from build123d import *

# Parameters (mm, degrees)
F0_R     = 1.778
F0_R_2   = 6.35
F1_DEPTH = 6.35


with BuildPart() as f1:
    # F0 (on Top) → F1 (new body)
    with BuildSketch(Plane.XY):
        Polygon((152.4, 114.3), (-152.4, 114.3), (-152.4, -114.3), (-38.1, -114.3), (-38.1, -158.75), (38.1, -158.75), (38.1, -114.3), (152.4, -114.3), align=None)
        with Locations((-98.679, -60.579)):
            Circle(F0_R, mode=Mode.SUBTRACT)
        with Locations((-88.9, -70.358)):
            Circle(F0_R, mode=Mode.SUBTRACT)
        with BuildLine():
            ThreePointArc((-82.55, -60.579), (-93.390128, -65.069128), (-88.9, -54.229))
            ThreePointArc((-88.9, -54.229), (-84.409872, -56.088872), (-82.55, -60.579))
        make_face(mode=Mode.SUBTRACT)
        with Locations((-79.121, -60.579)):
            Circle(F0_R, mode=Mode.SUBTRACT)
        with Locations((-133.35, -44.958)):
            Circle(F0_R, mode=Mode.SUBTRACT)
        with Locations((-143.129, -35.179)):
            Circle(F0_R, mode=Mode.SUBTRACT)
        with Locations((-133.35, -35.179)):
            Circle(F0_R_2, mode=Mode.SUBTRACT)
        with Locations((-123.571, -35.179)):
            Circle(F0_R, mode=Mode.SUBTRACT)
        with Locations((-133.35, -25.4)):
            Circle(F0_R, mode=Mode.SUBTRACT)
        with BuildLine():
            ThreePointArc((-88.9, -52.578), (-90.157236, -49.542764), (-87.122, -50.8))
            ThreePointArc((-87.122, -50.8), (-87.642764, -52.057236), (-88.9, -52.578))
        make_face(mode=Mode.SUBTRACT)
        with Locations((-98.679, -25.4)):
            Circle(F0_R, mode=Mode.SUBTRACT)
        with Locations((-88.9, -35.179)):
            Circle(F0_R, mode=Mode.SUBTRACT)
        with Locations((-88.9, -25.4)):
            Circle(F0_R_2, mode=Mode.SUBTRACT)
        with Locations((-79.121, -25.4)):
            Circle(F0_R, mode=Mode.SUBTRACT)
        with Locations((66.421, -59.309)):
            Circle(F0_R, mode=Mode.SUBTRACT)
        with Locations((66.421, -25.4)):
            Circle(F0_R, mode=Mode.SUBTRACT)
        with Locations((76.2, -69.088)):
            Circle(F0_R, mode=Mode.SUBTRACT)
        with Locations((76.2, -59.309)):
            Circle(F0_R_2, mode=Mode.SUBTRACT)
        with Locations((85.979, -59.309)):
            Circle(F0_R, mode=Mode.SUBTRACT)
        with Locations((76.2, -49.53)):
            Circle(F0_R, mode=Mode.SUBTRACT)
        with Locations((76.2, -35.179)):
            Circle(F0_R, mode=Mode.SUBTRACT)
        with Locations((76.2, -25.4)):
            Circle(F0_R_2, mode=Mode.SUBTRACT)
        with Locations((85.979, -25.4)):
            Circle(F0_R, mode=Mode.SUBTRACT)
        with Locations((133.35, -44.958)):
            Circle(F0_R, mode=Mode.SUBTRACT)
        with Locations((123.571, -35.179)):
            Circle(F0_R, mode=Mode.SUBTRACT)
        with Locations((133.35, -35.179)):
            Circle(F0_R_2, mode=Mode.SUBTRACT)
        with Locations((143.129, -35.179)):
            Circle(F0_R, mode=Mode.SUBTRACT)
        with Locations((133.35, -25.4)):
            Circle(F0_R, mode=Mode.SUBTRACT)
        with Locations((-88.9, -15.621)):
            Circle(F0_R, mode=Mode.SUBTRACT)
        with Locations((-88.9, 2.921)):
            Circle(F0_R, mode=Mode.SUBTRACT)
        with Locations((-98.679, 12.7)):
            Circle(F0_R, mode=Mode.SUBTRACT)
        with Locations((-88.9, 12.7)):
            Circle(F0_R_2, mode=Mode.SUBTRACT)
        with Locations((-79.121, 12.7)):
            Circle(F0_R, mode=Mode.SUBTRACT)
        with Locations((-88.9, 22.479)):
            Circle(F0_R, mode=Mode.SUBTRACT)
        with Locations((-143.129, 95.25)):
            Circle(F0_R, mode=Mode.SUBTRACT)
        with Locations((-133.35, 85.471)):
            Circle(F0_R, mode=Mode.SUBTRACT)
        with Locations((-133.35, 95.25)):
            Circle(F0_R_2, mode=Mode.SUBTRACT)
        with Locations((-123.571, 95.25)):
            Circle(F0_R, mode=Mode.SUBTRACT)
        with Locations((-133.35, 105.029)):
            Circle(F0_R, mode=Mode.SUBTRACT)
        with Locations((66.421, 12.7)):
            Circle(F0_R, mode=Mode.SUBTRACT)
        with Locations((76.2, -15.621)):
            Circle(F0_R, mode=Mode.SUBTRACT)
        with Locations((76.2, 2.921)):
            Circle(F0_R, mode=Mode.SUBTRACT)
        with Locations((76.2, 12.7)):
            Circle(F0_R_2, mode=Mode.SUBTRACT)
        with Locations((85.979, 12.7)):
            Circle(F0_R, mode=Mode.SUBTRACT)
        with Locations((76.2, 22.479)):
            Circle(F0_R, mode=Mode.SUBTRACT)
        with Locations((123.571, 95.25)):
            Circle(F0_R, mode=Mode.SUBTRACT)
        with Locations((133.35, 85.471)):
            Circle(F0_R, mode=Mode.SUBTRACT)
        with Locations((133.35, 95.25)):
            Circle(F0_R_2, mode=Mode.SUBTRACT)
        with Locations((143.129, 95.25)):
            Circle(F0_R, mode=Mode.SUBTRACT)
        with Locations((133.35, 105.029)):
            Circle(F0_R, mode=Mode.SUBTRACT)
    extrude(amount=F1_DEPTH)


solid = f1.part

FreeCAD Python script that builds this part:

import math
import FreeCAD as App
import Part
import Sketcher

V = App.Vector
Q = App.Units.Quantity


def add_polygon(sketch, points):
    """Adds a closed chain of lines whose ends are joined by coincident constraints."""
    first, n = sketch.GeometryCount, len(points)
    for a, b in zip(points, points[1:] + points[:1]):
        sketch.addGeometry(Part.LineSegment(App.Vector(*a, 0), App.Vector(*b, 0)), False)
    for i in range(n):
        sketch.addConstraint(Sketcher.Constraint("Coincident", first + i, 2, first + (i + 1) % n, 1))

doc = App.newDocument("Part")
body = doc.addObject("PartDesign::Body", "Body")

# Sketch on XY plane
sketch1 = body.newObject("Sketcher::SketchObject", "Sketch")
sketch1.AttachmentSupport = (doc.getObject("XY_Plane"), [""])
sketch1.MapMode = "FlatFace"
add_polygon(sketch1, [(152.4, 114.3), (-152.4, 114.3), (-152.4, -114.3), (-38.1, -114.3), (-38.1, -158.75), (38.1, -158.75), (38.1, -114.3), (152.4, -114.3)])  # lines 0-7
sketch1.addGeometry(Part.Circle(V(-88.9, -70.358, 0), V(0, 0, 1), 1.778), False)  # 8
sketch1.addGeometry(Part.Circle(V(-98.679, -60.579, 0), V(0, 0, 1), 1.778), False)  # 9
sketch1.addGeometry(Part.ArcOfCircle(Part.Circle(V(-88.9, -60.579, 0), V(0, 0, 1), 6.35), math.radians(0.000002), math.radians(89.999998)), False)  # 10
sketch1.addGeometry(Part.ArcOfCircle(Part.Circle(V(-88.9, -60.579, 0), V(0, 0, 1), 6.35), math.radians(90), math.radians(360)), False)  # 11
sketch1.addGeometry(Part.Circle(V(-79.121, -60.579, 0), V(0, 0, 1), 1.778), False)  # 12
sketch1.addGeometry(Part.ArcOfCircle(Part.Circle(V(-88.9, -50.8, 0), V(0, 0, 1), 1.778), math.radians(-90.000016), math.radians(0.000016)), False)  # 13
sketch1.addGeometry(Part.ArcOfCircle(Part.Circle(V(-88.9, -50.8, 0), V(0, 0, 1), 1.778), math.radians(-0.000003), math.radians(270.000003)), False)  # 14
sketch1.addGeometry(Part.Circle(V(-133.35, -44.958, 0), V(0, 0, 1), 1.778), False)  # 15
sketch1.addGeometry(Part.Circle(V(-143.129, -35.179, 0), V(0, 0, 1), 1.778), False)  # 16
sketch1.addGeometry(Part.Circle(V(-133.35, -35.179, 0), V(0, 0, 1), 6.35), False)  # 17
sketch1.addGeometry(Part.Circle(V(-123.571, -35.179, 0), V(0, 0, 1), 1.778), False)  # 18
sketch1.addGeometry(Part.Circle(V(-88.9, -35.179, 0), V(0, 0, 1), 1.778), False)  # 19
sketch1.addGeometry(Part.Circle(V(-133.35, -25.4, 0), V(0, 0, 1), 1.778), False)  # 20
sketch1.addGeometry(Part.Circle(V(-98.679, -25.4, 0), V(0, 0, 1), 1.778), False)  # 21
sketch1.addGeometry(Part.Circle(V(-88.9, -25.4, 0), V(0, 0, 1), 6.35), False)  # 22
sketch1.addGeometry(Part.Circle(V(-79.121, -25.4, 0), V(0, 0, 1), 1.778), False)  # 23
sketch1.addGeometry(Part.Circle(V(-88.9, -15.621, 0), V(0, 0, 1), 1.778), False)  # 24
sketch1.addGeometry(Part.Circle(V(-88.9, 2.921, 0), V(0, 0, 1), 1.778), False)  # 25
sketch1.addGeometry(Part.Circle(V(-98.679, 12.7, 0), V(0, 0, 1), 1.778), False)  # 26
sketch1.addGeometry(Part.Circle(V(-88.9, 12.7, 0), V(0, 0, 1), 6.35), False)  # 27
sketch1.addGeometry(Part.Circle(V(-79.121, 12.7, 0), V(0, 0, 1), 1.778), False)  # 28
sketch1.addGeometry(Part.Circle(V(66.421, -59.309, 0), V(0, 0, 1), 1.778), False)  # 29
sketch1.addGeometry(Part.Circle(V(76.2, -69.088, 0), V(0, 0, 1), 1.778), False)  # 30
sketch1.addGeometry(Part.Circle(V(76.2, -59.309, 0), V(0, 0, 1), 6.35), False)  # 31
sketch1.addGeometry(Part.Circle(V(85.979, -59.309, 0), V(0, 0, 1), 1.778), False)  # 32
sketch1.addGeometry(Part.Circle(V(76.2, -49.53, 0), V(0, 0, 1), 1.778), False)  # 33
sketch1.addGeometry(Part.Circle(V(76.2, -35.179, 0), V(0, 0, 1), 1.778), False)  # 34
sketch1.addGeometry(Part.Circle(V(133.35, -44.958, 0), V(0, 0, 1), 1.778), False)  # 35
sketch1.addGeometry(Part.Circle(V(123.571, -35.179, 0), V(0, 0, 1), 1.778), False)  # 36
sketch1.addGeometry(Part.Circle(V(133.35, -35.179, 0), V(0, 0, 1), 6.35), False)  # 37
sketch1.addGeometry(Part.Circle(V(143.129, -35.179, 0), V(0, 0, 1), 1.778), False)  # 38
sketch1.addGeometry(Part.Circle(V(66.421, -25.4, 0), V(0, 0, 1), 1.778), False)  # 39
sketch1.addGeometry(Part.Circle(V(66.421, 12.7, 0), V(0, 0, 1), 1.778), False)  # 40
sketch1.addGeometry(Part.Circle(V(76.2, -25.4, 0), V(0, 0, 1), 6.35), False)  # 41
sketch1.addGeometry(Part.Circle(V(85.979, -25.4, 0), V(0, 0, 1), 1.778), False)  # 42
sketch1.addGeometry(Part.Circle(V(76.2, -15.621, 0), V(0, 0, 1), 1.778), False)  # 43
sketch1.addGeometry(Part.Circle(V(133.35, -25.4, 0), V(0, 0, 1), 1.778), False)  # 44
sketch1.addGeometry(Part.Circle(V(76.2, 2.921, 0), V(0, 0, 1), 1.778), False)  # 45
sketch1.addGeometry(Part.Circle(V(76.2, 12.7, 0), V(0, 0, 1), 6.35), False)  # 46
sketch1.addGeometry(Part.Circle(V(85.979, 12.7, 0), V(0, 0, 1), 1.778), False)  # 47
sketch1.addGeometry(Part.Circle(V(-88.9, 22.479, 0), V(0, 0, 1), 1.778), False)  # 48
sketch1.addGeometry(Part.Circle(V(-133.35, 85.471, 0), V(0, 0, 1), 1.778), False)  # 49
sketch1.addGeometry(Part.Circle(V(-143.129, 95.25, 0), V(0, 0, 1), 1.778), False)  # 50
sketch1.addGeometry(Part.Circle(V(-133.35, 95.25, 0), V(0, 0, 1), 6.35), False)  # 51
sketch1.addGeometry(Part.Circle(V(-123.571, 95.25, 0), V(0, 0, 1), 1.778), False)  # 52
sketch1.addGeometry(Part.Circle(V(-133.35, 105.029, 0), V(0, 0, 1), 1.778), False)  # 53
sketch1.addGeometry(Part.Circle(V(76.2, 22.479, 0), V(0, 0, 1), 1.778), False)  # 54
sketch1.addGeometry(Part.Circle(V(123.571, 95.25, 0), V(0, 0, 1), 1.778), False)  # 55
sketch1.addGeometry(Part.Circle(V(133.35, 85.471, 0), V(0, 0, 1), 1.778), False)  # 56
sketch1.addGeometry(Part.Circle(V(133.35, 95.25, 0), V(0, 0, 1), 6.35), False)  # 57
sketch1.addGeometry(Part.Circle(V(143.129, 95.25, 0), V(0, 0, 1), 1.778), False)  # 58
sketch1.addGeometry(Part.Circle(V(133.35, 105.029, 0), V(0, 0, 1), 1.778), False)  # 59
sketch1.addConstraint(Sketcher.Constraint("Tangent", 10, 1, 11, 2))
sketch1.addConstraint(Sketcher.Constraint("Coincident", 11, 1, 10, 2))
sketch1.addConstraint(Sketcher.Constraint("Tangent", 13, 1, 14, 2))
sketch1.addConstraint(Sketcher.Constraint("Coincident", 14, 1, 13, 2))
sketch1.addConstraint(Sketcher.Constraint("Horizontal", 0))
sketch1.addConstraint(Sketcher.Constraint("Vertical", 1))
sketch1.addConstraint(Sketcher.Constraint("Horizontal", 2))
sketch1.addConstraint(Sketcher.Constraint("Vertical", 3))
sketch1.addConstraint(Sketcher.Constraint("Horizontal", 4))
sketch1.addConstraint(Sketcher.Constraint("Vertical", 5))
sketch1.addConstraint(Sketcher.Constraint("Horizontal", 6))
sketch1.addConstraint(Sketcher.Constraint("Vertical", 7))
sketch1.addConstraint(Sketcher.Constraint("Equal", 8, 9))
sketch1.addConstraint(Sketcher.Constraint("Equal", 9, 12))
sketch1.addConstraint(Sketcher.Constraint("Equal", 12, 13))
sketch1.addConstraint(Sketcher.Constraint("Equal", 14, 15))
sketch1.addConstraint(Sketcher.Constraint("Equal", 15, 16))
sketch1.addConstraint(Sketcher.Constraint("Equal", 11, 17))
sketch1.addConstraint(Sketcher.Constraint("Equal", 16, 18))
sketch1.addConstraint(Sketcher.Constraint("Equal", 18, 19))
sketch1.addConstraint(Sketcher.Constraint("Equal", 19, 20))
sketch1.addConstraint(Sketcher.Constraint("Equal", 20, 21))
sketch1.addConstraint(Sketcher.Constraint("Equal", 17, 22))
sketch1.addConstraint(Sketcher.Constraint("Equal", 21, 23))
sketch1.addConstraint(Sketcher.Constraint("Equal", 23, 24))
sketch1.addConstraint(Sketcher.Constraint("Equal", 24, 25))
sketch1.addConstraint(Sketcher.Constraint("Equal", 25, 26))
sketch1.addConstraint(Sketcher.Constraint("Equal", 22, 27))
sketch1.addConstraint(Sketcher.Constraint("Equal", 26, 28))
sketch1.addConstraint(Sketcher.Constraint("Equal", 28, 29))
sketch1.addConstraint(Sketcher.Constraint("Equal", 29, 30))
sketch1.addConstraint(Sketcher.Constraint("Equal", 27, 31))
sketch1.addConstraint(Sketcher.Constraint("Equal", 30, 32))
sketch1.addConstraint(Sketcher.Constraint("Equal", 32, 33))
sketch1.addConstraint(Sketcher.Constraint("Equal", 33, 34))
sketch1.addConstraint(Sketcher.Constraint("Equal", 34, 35))
sketch1.addConstraint(Sketcher.Constraint("Equal", 35, 36))
sketch1.addConstraint(Sketcher.Constraint("Equal", 31, 37))
sketch1.addConstraint(Sketcher.Constraint("Equal", 36, 38))
sketch1.addConstraint(Sketcher.Constraint("Equal", 38, 39))
sketch1.addConstraint(Sketcher.Constraint("Equal", 39, 40))
sketch1.addConstraint(Sketcher.Constraint("Equal", 37, 41))
sketch1.addConstraint(Sketcher.Constraint("Equal", 40, 42))
sketch1.addConstraint(Sketcher.Constraint("Equal", 42, 43))
sketch1.addConstraint(Sketcher.Constraint("Equal", 43, 44))
sketch1.addConstraint(Sketcher.Constraint("Equal", 44, 45))
sketch1.addConstraint(Sketcher.Constraint("Equal", 41, 46))
sketch1.addConstraint(Sketcher.Constraint("Equal", 45, 47))
sketch1.addConstraint(Sketcher.Constraint("Equal", 47, 48))
sketch1.addConstraint(Sketcher.Constraint("Equal", 48, 49))
sketch1.addConstraint(Sketcher.Constraint("Equal", 49, 50))
sketch1.addConstraint(Sketcher.Constraint("Equal", 46, 51))
sketch1.addConstraint(Sketcher.Constraint("Equal", 50, 52))
sketch1.addConstraint(Sketcher.Constraint("Equal", 52, 53))
sketch1.addConstraint(Sketcher.Constraint("Equal", 53, 54))
sketch1.addConstraint(Sketcher.Constraint("Equal", 54, 55))
sketch1.addConstraint(Sketcher.Constraint("Equal", 55, 56))
sketch1.addConstraint(Sketcher.Constraint("Equal", 51, 57))
sketch1.addConstraint(Sketcher.Constraint("Equal", 56, 58))
sketch1.addConstraint(Sketcher.Constraint("Equal", 58, 59))
sketch1.addConstraint(Sketcher.Constraint("Symmetric", 0, 2, 6, 2, -1, 1))
sketch1.addConstraint(Sketcher.Constraint("Symmetric", 15, 3, 35, 3, -2))
sketch1.addConstraint(Sketcher.Constraint("Symmetric", 18, 3, 36, 3, -2))
sketch1.addConstraint(Sketcher.Constraint("Symmetric", 17, 3, 37, 3, -2))
sketch1.addConstraint(Sketcher.Constraint("Symmetric", 16, 3, 38, 3, -2))
sketch1.addConstraint(Sketcher.Constraint("Symmetric", 20, 3, 44, 3, -2))
sketch1.addConstraint(Sketcher.Constraint("Symmetric", 52, 3, 55, 3, -2))
sketch1.addConstraint(Sketcher.Constraint("Symmetric", 49, 3, 56, 3, -2))
sketch1.addConstraint(Sketcher.Constraint("Symmetric", 51, 3, 57, 3, -2))
sketch1.addConstraint(Sketcher.Constraint("Symmetric", 50, 3, 58, 3, -2))
sketch1.addConstraint(Sketcher.Constraint("Symmetric", 53, 3, 59, 3, -2))
sketch1.addConstraint(Sketcher.Constraint("Symmetric", 2, 2, 5, 2, -2))
sketch1.addConstraint(Sketcher.Constraint("Horizontal", 9, 3, 10, 3))
sketch1.addConstraint(Sketcher.Constraint("Horizontal", 11, 3, 12, 3))
sketch1.addConstraint(Sketcher.Constraint("Horizontal", 16, 3, 17, 3))
sketch1.addConstraint(Sketcher.Constraint("Horizontal", 17, 3, 18, 3))
sketch1.addConstraint(Sketcher.Constraint("Horizontal", 18, 3, 19, 3))
sketch1.addConstraint(Sketcher.Constraint("Horizontal", 20, 3, 21, 3))
sketch1.addConstraint(Sketcher.Constraint("Horizontal", 21, 3, 22, 3))
sketch1.addConstraint(Sketcher.Constraint("Horizontal", 22, 3, 23, 3))
sketch1.addConstraint(Sketcher.Constraint("Horizontal", 26, 3, 27, 3))
sketch1.addConstraint(Sketcher.Constraint("Horizontal", 27, 3, 28, 3))
sketch1.addConstraint(Sketcher.Constraint("Horizontal", 29, 3, 31, 3))
sketch1.addConstraint(Sketcher.Constraint("Horizontal", 31, 3, 32, 3))
sketch1.addConstraint(Sketcher.Constraint("Horizontal", 19, 3, 34, 3))
sketch1.addConstraint(Sketcher.Constraint("Horizontal", 23, 3, 39, 3))
sketch1.addConstraint(Sketcher.Constraint("Horizontal", 28, 3, 40, 3))
sketch1.addConstraint(Sketcher.Constraint("Horizontal", 39, 3, 41, 3))
sketch1.addConstraint(Sketcher.Constraint("Horizontal", 41, 3, 42, 3))
sketch1.addConstraint(Sketcher.Constraint("Horizontal", 24, 3, 43, 3))
sketch1.addConstraint(Sketcher.Constraint("Horizontal", 25, 3, 45, 3))
sketch1.addConstraint(Sketcher.Constraint("Horizontal", 40, 3, 46, 3))
sketch1.addConstraint(Sketcher.Constraint("Horizontal", 46, 3, 47, 3))
sketch1.addConstraint(Sketcher.Constraint("Horizontal", 50, 3, 51, 3))
sketch1.addConstraint(Sketcher.Constraint("Horizontal", 51, 3, 52, 3))
sketch1.addConstraint(Sketcher.Constraint("Horizontal", 48, 3, 54, 3))
sketch1.addConstraint(Sketcher.Constraint("Horizontal", 12, 3, 10, 1))
sketch1.addConstraint(Sketcher.Constraint("Horizontal", 13, 3, 14, 1))
sketch1.addConstraint(Sketcher.Constraint("Vertical", 8, 3, 10, 3))
sketch1.addConstraint(Sketcher.Constraint("Vertical", 11, 3, 13, 3))
sketch1.addConstraint(Sketcher.Constraint("Vertical", 15, 3, 17, 3))
sketch1.addConstraint(Sketcher.Constraint("Vertical", 14, 3, 19, 3))
sketch1.addConstraint(Sketcher.Constraint("Vertical", 17, 3, 20, 3))
sketch1.addConstraint(Sketcher.Constraint("Vertical", 9, 3, 21, 3))
sketch1.addConstraint(Sketcher.Constraint("Vertical", 19, 3, 22, 3))
sketch1.addConstraint(Sketcher.Constraint("Vertical", 12, 3, 23, 3))
sketch1.addConstraint(Sketcher.Constraint("Vertical", 22, 3, 24, 3))
sketch1.addConstraint(Sketcher.Constraint("Vertical", 24, 3, 25, 3))
sketch1.addConstraint(Sketcher.Constraint("Vertical", 21, 3, 26, 3))
sketch1.addConstraint(Sketcher.Constraint("Vertical", 25, 3, 27, 3))
sketch1.addConstraint(Sketcher.Constraint("Vertical", 23, 3, 28, 3))
sketch1.addConstraint(Sketcher.Constraint("Vertical", 30, 3, 31, 3))
sketch1.addConstraint(Sketcher.Constraint("Vertical", 31, 3, 33, 3))
sketch1.addConstraint(Sketcher.Constraint("Vertical", 33, 3, 34, 3))
sketch1.addConstraint(Sketcher.Constraint("Vertical", 29, 3, 39, 3))
sketch1.addConstraint(Sketcher.Constraint("Vertical", 39, 3, 40, 3))
sketch1.addConstraint(Sketcher.Constraint("Vertical", 34, 3, 41, 3))
sketch1.addConstraint(Sketcher.Constraint("Vertical", 32, 3, 42, 3))
sketch1.addConstraint(Sketcher.Constraint("Vertical", 41, 3, 43, 3))
sketch1.addConstraint(Sketcher.Constraint("Vertical", 43, 3, 45, 3))
sketch1.addConstraint(Sketcher.Constraint("Vertical", 45, 3, 46, 3))
sketch1.addConstraint(Sketcher.Constraint("Vertical", 42, 3, 47, 3))
sketch1.addConstraint(Sketcher.Constraint("Vertical", 27, 3, 48, 3))
sketch1.addConstraint(Sketcher.Constraint("Vertical", 20, 3, 49, 3))
sketch1.addConstraint(Sketcher.Constraint("Vertical", 16, 3, 50, 3))
sketch1.addConstraint(Sketcher.Constraint("Vertical", 49, 3, 51, 3))
sketch1.addConstraint(Sketcher.Constraint("Vertical", 18, 3, 52, 3))
sketch1.addConstraint(Sketcher.Constraint("Vertical", 51, 3, 53, 3))
sketch1.addConstraint(Sketcher.Constraint("Vertical", 46, 3, 54, 3))
sketch1.addConstraint(Sketcher.Constraint("Vertical", 48, 3, 11, 1))
sketch1.addConstraint(Sketcher.Constraint("Vertical", 11, 1, 13, 1))
sketch1.addConstraint(Sketcher.Constraint("Diameter", 17, Q("0.5 in")))
sketch1.addConstraint(Sketcher.Constraint("Diameter", 8, Q("0.14 in")))
sketch1.addConstraint(Sketcher.Constraint("DistanceX", 0, 2, 0, 1, Q("12 in")))
sketch1.addConstraint(Sketcher.Constraint("DistanceX", 4, 1, 4, 2, Q("3 in")))
sketch1.addConstraint(Sketcher.Constraint("DistanceY", 1, 2, 1, 1, Q("9 in")))
sketch1.addConstraint(Sketcher.Constraint("DistanceY", 13, 3, -1, 1, Q("2 in")))
sketch1.addConstraint(Sketcher.Constraint("DistanceY", 20, 3, -1, 1, Q("1 in")))
sketch1.addConstraint(Sketcher.Constraint("DistanceX", -1, 1, 30, 3, Q("3 in")))
sketch1.addConstraint(Sketcher.Constraint("DistanceY", 3, 2, 3, 1, Q("1.75 in")))
sketch1.addConstraint(Sketcher.Constraint("DistanceX", 8, 3, -1, 1, Q("3.5 in")))
sketch1.addConstraint(Sketcher.Constraint("DistanceY", -1, 1, 26, 3, Q("0.5 in")))
sketch1.addConstraint(Sketcher.Constraint("DistanceY", 8, 3, -1, 1, Q("2.77 in")))
sketch1.addConstraint(Sketcher.Constraint("DistanceX", 15, 3, -1, 1, Q("5.25 in")))
sketch1.addConstraint(Sketcher.Constraint("DistanceY", 15, 3, -1, 1, Q("1.77 in")))
sketch1.addConstraint(Sketcher.Constraint("DistanceY", 30, 3, -1, 1, Q("2.72 in")))
sketch1.addConstraint(Sketcher.Constraint("DistanceY", 33, 3, -1, 1, Q("1.95 in")))
sketch1.addConstraint(Sketcher.Constraint("DistanceY", -1, 1, 50, 3, Q("3.75 in")))
sketch1.addConstraint(Sketcher.Constraint("DistanceX", 9, 3, -1, 1, Q("3.885 in")))
sketch1.addConstraint(Sketcher.Constraint("DistanceY", 9, 3, -1, 1, Q("2.385 in")))
sketch1.addConstraint(Sketcher.Constraint("DistanceX", 12, 3, -1, 1, Q("3.115 in")))
sketch1.addConstraint(Sketcher.Constraint("DistanceX", 16, 3, -1, 1, Q("5.635 in")))
sketch1.addConstraint(Sketcher.Constraint("DistanceY", 16, 3, -1, 1, Q("1.385 in")))
sketch1.addConstraint(Sketcher.Constraint("DistanceX", 18, 3, -1, 1, Q("4.865 in")))
sketch1.addConstraint(Sketcher.Constraint("DistanceY", 24, 3, -1, 1, Q("0.615 in")))
sketch1.addConstraint(Sketcher.Constraint("DistanceY", -1, 1, 25, 3, Q("0.115 in")))
sketch1.addConstraint(Sketcher.Constraint("DistanceX", -1, 1, 29, 3, Q("2.615 in")))
sketch1.addConstraint(Sketcher.Constraint("DistanceY", 29, 3, -1, 1, Q("2.335 in")))
sketch1.addConstraint(Sketcher.Constraint("DistanceX", -1, 1, 32, 3, Q("3.385 in")))
sketch1.addConstraint(Sketcher.Constraint("DistanceY", -1, 1, 48, 3, Q("0.885 in")))
sketch1.addConstraint(Sketcher.Constraint("DistanceY", -1, 1, 49, 3, Q("3.365 in")))
sketch1.addConstraint(Sketcher.Constraint("DistanceY", -1, 1, 53, 3, Q("4.135 in")))
pad1 = body.newObject("PartDesign::Pad", "Pad")
pad1.Profile = sketch1
pad1.Length = Q("0.25 in")

doc.recompute()
